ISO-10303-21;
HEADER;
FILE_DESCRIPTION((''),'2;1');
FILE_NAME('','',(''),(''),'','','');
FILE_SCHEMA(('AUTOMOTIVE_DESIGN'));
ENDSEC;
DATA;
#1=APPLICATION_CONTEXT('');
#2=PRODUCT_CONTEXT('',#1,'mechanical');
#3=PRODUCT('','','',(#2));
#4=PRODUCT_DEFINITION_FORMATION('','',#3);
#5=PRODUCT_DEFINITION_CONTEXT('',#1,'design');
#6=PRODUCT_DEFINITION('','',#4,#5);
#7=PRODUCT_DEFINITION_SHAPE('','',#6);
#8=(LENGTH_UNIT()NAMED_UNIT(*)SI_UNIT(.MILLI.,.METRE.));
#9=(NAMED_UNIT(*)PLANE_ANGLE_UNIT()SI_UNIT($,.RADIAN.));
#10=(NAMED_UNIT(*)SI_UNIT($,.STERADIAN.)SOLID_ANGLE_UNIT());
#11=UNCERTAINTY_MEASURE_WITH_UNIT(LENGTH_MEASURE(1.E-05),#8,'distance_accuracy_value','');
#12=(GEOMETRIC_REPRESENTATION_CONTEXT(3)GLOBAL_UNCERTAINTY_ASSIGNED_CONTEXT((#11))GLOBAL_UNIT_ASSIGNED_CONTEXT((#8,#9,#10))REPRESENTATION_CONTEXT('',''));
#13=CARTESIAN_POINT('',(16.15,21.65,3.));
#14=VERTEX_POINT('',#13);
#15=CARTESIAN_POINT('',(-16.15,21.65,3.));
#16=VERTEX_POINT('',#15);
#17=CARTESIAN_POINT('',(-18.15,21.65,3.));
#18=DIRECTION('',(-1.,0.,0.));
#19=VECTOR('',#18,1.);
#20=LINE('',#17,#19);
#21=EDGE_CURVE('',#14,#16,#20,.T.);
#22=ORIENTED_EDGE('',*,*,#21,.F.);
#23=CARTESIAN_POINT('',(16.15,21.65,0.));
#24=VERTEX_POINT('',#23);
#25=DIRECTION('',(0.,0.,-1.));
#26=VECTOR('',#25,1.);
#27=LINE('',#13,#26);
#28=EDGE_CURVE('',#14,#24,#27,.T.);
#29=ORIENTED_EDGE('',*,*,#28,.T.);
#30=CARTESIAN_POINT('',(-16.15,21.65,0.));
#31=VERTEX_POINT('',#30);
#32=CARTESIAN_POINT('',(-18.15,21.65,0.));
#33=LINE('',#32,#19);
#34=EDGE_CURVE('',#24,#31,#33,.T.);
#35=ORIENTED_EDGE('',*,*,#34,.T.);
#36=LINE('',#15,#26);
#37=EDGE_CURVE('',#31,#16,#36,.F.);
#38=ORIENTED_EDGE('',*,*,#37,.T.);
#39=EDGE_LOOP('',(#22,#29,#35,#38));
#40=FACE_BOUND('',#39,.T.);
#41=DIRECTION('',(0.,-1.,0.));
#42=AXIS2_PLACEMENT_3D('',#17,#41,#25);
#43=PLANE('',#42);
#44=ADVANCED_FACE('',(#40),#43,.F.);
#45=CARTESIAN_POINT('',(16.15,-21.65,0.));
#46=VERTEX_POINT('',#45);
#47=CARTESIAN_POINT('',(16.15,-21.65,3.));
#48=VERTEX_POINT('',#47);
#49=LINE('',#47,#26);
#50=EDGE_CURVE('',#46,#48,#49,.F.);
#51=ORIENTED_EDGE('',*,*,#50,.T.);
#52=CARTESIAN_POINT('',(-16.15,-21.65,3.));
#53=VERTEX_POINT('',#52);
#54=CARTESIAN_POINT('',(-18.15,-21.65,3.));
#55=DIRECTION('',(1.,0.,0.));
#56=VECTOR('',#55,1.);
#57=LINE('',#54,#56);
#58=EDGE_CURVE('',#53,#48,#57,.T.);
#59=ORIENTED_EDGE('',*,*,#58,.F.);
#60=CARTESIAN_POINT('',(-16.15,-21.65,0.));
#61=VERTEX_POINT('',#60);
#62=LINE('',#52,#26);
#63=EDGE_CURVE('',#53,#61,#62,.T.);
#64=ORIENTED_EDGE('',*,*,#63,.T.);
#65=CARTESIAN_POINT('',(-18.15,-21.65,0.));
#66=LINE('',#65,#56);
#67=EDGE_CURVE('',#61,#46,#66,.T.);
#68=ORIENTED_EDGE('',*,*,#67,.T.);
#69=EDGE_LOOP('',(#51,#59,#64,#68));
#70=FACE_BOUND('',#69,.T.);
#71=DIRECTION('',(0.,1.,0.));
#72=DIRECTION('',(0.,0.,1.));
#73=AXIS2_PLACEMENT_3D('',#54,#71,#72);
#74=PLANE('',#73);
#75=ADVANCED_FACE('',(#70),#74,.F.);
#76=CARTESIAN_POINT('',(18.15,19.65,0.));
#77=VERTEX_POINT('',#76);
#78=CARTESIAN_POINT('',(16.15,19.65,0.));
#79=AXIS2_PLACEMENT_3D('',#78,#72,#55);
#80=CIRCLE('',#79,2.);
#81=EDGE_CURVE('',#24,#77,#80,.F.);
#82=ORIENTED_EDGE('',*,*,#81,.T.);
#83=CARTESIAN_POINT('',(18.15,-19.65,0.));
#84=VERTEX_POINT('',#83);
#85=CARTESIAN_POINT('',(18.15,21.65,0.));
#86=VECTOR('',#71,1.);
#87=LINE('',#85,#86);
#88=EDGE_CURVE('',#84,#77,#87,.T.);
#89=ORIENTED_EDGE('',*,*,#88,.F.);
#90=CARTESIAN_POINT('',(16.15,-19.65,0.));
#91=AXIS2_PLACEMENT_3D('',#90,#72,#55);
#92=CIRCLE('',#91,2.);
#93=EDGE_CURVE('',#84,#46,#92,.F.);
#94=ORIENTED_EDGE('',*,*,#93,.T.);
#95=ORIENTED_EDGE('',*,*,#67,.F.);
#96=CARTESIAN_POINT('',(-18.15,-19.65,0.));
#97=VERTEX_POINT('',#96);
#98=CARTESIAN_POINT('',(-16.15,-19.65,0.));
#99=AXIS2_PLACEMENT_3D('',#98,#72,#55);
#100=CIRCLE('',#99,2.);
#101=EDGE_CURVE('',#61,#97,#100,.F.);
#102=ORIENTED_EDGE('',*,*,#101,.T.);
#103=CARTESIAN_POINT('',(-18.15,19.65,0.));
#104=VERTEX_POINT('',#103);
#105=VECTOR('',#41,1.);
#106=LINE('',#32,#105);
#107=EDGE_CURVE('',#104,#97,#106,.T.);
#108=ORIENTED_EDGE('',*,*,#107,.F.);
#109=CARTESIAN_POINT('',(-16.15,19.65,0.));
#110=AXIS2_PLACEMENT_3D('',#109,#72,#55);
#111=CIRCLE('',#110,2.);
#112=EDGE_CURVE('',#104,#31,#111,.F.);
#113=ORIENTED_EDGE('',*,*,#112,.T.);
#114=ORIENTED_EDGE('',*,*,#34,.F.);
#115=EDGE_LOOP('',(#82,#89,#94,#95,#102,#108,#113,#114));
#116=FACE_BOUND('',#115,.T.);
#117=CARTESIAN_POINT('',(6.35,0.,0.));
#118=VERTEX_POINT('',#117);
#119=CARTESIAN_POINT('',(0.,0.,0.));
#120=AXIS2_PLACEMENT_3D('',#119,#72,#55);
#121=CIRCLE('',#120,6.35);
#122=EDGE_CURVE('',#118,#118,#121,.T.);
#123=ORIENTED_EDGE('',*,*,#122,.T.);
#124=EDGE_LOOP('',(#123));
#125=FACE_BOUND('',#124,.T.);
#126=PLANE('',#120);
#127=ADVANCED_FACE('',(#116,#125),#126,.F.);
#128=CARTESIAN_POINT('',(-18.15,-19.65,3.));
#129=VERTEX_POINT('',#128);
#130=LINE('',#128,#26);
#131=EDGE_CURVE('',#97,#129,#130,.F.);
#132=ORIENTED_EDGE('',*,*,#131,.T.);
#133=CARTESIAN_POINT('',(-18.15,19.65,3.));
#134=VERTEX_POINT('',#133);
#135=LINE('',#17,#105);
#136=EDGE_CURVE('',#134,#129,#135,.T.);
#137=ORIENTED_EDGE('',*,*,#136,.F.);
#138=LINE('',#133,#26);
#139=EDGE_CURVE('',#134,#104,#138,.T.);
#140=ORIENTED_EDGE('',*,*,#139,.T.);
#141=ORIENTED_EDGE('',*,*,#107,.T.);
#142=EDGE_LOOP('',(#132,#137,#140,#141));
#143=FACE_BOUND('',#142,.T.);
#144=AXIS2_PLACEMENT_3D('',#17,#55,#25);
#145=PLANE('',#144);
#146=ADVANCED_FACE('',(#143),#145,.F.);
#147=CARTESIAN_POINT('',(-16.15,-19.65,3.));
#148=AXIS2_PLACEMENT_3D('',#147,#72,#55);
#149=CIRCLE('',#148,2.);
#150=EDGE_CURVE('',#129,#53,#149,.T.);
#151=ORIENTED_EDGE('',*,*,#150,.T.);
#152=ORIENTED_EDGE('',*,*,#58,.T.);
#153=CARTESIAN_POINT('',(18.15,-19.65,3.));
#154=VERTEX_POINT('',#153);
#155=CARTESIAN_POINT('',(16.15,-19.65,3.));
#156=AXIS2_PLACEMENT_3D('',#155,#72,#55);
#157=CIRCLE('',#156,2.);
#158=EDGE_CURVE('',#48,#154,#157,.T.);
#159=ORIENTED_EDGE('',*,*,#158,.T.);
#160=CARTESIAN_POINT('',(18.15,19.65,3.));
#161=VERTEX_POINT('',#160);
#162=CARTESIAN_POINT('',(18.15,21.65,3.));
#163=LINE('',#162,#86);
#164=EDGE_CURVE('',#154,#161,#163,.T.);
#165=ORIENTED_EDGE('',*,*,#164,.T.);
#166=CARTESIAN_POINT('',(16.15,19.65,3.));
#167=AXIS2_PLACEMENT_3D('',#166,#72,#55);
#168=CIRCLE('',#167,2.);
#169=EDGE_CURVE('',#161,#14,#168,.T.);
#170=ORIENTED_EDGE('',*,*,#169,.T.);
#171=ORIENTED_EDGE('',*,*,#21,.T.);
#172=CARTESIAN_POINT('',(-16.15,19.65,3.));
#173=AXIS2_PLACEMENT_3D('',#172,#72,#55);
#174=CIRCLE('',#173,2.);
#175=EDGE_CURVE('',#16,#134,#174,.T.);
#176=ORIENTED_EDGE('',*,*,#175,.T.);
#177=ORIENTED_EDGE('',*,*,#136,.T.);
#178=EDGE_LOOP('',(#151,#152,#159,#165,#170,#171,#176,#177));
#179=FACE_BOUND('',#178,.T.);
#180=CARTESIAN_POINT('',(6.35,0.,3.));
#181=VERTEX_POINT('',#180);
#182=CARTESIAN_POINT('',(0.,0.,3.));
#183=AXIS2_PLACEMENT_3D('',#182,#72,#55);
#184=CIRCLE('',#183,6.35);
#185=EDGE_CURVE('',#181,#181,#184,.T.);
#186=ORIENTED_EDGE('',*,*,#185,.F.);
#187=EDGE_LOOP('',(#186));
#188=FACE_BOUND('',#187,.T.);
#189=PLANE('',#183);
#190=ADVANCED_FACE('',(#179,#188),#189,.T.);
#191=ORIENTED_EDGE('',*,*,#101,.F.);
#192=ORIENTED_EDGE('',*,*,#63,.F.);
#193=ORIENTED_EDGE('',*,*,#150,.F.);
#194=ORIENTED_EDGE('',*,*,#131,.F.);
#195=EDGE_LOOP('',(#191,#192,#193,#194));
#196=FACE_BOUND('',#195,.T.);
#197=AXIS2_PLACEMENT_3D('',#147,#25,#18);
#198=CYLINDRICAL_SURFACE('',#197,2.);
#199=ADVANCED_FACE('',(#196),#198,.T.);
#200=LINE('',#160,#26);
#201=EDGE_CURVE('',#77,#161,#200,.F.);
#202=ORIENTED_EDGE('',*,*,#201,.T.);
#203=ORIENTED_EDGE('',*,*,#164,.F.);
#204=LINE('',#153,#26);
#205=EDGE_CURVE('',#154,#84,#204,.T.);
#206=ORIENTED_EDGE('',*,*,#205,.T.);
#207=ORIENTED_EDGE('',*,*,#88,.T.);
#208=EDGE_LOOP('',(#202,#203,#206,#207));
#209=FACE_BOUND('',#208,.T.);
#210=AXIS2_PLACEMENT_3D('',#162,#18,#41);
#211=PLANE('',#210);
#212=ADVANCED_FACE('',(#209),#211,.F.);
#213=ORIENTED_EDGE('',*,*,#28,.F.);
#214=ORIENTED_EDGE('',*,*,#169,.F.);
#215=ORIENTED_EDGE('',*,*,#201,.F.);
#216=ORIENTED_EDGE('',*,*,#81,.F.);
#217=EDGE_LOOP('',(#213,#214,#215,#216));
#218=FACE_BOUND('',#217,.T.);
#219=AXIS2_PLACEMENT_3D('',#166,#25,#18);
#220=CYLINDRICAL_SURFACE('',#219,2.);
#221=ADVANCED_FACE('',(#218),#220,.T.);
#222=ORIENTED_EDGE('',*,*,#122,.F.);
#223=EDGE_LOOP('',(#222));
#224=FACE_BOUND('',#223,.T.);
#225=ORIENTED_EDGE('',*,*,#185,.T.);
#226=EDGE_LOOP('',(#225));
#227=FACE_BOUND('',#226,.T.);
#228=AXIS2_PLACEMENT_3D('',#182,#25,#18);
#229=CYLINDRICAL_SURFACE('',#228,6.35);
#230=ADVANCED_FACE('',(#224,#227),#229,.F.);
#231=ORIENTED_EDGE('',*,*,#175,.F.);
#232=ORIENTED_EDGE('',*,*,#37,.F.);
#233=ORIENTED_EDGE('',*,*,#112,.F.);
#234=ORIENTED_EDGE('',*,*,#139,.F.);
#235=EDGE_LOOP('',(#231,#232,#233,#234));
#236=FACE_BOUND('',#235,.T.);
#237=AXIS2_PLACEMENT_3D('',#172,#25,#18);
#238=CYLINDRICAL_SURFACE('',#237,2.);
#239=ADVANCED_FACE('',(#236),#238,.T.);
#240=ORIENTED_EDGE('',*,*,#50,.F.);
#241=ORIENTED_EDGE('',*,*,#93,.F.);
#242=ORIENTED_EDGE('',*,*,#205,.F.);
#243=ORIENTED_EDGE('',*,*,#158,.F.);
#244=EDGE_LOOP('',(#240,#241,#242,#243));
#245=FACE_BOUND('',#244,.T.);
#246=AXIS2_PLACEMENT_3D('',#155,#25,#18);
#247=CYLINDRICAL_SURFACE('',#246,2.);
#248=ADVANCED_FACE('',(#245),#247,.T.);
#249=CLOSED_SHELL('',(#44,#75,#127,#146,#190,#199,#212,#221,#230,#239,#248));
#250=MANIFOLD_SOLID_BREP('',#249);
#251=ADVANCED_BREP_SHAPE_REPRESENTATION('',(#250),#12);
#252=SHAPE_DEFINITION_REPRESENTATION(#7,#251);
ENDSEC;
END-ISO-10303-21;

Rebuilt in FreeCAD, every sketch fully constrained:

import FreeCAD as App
import Part
import Sketcher
from FreeCAD import Vector
Q = App.Units.Quantity


def edges_at(feature, points):
    """Names of the edges that pass closest to the given points."""
    edges = feature.Shape.Edges
    near = lambda p: min(range(len(edges)), key=lambda i: edges[i].distToShape(Part.Vertex(*p))[0])
    return sorted({f"Edge{near(p) + 1}" for p in points})


def add_polygon(sketch, points):
    """Adds a closed chain of lines whose ends are joined by coincident constraints."""
    first, n = sketch.GeometryCount, len(points)
    for a, b in zip(points, points[1:] + points[:1]):
        sketch.addGeometry(Part.LineSegment(App.Vector(*a, 0), App.Vector(*b, 0)), False)
    for i in range(n):
        sketch.addConstraint(Sketcher.Constraint("Coincident", first + i, 2, first + (i + 1) % n, 1))

doc = App.newDocument("Part")
body = doc.addObject("PartDesign::Body", "Body")

# Sketch on XY plane
sketch1 = body.newObject("Sketcher::SketchObject", "Sketch")
sketch1.AttachmentSupport = (doc.getObject("XY_Plane"), [""])
sketch1.MapMode = "FlatFace"
add_polygon(sketch1, [(-18, 22), (-18, -22), (18, -22), (18, 22)])  # lines 0-3
sketch1.addGeometry(Part.Circle(Vector(0, 0, 0), Vector(0, 0, 1), 6), False)  # 4
sketch1.addConstraint(Sketcher.Constraint("Vertical", 0))
sketch1.addConstraint(Sketcher.Constraint("Horizontal", 1))
sketch1.addConstraint(Sketcher.Constraint("Vertical", 2))
sketch1.addConstraint(Sketcher.Constraint("Horizontal", 3))
sketch1.addConstraint(Sketcher.Constraint("Coincident", 4, 3, -1, 1))
sketch1.addConstraint(Sketcher.Constraint("Symmetric", 0, 2, 2, 2, -1, 1))
sketch1.addConstraint(Sketcher.Constraint("Diameter", 4, Q("12.7 mm")))
sketch1.addConstraint(Sketcher.Constraint("DistanceX", 1, 1, 1, 2, Q("36.3 mm")))
sketch1.addConstraint(Sketcher.Constraint("DistanceY", 0, 2, 0, 1, Q("43.3 mm")))
pad1 = body.newObject("PartDesign::Pad", "Pad")
pad1.Profile = sketch1
pad1.Length = 3
doc.recompute()

fillet = body.newObject("PartDesign::Fillet", "Fillet")
fillet.Base = (pad1, edges_at(pad1, [
    (18.15, -21.65, 1.5),
    (-18.15, -21.65, 1.5),
    (-18.15, 21.65, 1.5),
    (18.15, 21.65, 1.5),
]))
fillet.Radius = 2

doc.recompute()
